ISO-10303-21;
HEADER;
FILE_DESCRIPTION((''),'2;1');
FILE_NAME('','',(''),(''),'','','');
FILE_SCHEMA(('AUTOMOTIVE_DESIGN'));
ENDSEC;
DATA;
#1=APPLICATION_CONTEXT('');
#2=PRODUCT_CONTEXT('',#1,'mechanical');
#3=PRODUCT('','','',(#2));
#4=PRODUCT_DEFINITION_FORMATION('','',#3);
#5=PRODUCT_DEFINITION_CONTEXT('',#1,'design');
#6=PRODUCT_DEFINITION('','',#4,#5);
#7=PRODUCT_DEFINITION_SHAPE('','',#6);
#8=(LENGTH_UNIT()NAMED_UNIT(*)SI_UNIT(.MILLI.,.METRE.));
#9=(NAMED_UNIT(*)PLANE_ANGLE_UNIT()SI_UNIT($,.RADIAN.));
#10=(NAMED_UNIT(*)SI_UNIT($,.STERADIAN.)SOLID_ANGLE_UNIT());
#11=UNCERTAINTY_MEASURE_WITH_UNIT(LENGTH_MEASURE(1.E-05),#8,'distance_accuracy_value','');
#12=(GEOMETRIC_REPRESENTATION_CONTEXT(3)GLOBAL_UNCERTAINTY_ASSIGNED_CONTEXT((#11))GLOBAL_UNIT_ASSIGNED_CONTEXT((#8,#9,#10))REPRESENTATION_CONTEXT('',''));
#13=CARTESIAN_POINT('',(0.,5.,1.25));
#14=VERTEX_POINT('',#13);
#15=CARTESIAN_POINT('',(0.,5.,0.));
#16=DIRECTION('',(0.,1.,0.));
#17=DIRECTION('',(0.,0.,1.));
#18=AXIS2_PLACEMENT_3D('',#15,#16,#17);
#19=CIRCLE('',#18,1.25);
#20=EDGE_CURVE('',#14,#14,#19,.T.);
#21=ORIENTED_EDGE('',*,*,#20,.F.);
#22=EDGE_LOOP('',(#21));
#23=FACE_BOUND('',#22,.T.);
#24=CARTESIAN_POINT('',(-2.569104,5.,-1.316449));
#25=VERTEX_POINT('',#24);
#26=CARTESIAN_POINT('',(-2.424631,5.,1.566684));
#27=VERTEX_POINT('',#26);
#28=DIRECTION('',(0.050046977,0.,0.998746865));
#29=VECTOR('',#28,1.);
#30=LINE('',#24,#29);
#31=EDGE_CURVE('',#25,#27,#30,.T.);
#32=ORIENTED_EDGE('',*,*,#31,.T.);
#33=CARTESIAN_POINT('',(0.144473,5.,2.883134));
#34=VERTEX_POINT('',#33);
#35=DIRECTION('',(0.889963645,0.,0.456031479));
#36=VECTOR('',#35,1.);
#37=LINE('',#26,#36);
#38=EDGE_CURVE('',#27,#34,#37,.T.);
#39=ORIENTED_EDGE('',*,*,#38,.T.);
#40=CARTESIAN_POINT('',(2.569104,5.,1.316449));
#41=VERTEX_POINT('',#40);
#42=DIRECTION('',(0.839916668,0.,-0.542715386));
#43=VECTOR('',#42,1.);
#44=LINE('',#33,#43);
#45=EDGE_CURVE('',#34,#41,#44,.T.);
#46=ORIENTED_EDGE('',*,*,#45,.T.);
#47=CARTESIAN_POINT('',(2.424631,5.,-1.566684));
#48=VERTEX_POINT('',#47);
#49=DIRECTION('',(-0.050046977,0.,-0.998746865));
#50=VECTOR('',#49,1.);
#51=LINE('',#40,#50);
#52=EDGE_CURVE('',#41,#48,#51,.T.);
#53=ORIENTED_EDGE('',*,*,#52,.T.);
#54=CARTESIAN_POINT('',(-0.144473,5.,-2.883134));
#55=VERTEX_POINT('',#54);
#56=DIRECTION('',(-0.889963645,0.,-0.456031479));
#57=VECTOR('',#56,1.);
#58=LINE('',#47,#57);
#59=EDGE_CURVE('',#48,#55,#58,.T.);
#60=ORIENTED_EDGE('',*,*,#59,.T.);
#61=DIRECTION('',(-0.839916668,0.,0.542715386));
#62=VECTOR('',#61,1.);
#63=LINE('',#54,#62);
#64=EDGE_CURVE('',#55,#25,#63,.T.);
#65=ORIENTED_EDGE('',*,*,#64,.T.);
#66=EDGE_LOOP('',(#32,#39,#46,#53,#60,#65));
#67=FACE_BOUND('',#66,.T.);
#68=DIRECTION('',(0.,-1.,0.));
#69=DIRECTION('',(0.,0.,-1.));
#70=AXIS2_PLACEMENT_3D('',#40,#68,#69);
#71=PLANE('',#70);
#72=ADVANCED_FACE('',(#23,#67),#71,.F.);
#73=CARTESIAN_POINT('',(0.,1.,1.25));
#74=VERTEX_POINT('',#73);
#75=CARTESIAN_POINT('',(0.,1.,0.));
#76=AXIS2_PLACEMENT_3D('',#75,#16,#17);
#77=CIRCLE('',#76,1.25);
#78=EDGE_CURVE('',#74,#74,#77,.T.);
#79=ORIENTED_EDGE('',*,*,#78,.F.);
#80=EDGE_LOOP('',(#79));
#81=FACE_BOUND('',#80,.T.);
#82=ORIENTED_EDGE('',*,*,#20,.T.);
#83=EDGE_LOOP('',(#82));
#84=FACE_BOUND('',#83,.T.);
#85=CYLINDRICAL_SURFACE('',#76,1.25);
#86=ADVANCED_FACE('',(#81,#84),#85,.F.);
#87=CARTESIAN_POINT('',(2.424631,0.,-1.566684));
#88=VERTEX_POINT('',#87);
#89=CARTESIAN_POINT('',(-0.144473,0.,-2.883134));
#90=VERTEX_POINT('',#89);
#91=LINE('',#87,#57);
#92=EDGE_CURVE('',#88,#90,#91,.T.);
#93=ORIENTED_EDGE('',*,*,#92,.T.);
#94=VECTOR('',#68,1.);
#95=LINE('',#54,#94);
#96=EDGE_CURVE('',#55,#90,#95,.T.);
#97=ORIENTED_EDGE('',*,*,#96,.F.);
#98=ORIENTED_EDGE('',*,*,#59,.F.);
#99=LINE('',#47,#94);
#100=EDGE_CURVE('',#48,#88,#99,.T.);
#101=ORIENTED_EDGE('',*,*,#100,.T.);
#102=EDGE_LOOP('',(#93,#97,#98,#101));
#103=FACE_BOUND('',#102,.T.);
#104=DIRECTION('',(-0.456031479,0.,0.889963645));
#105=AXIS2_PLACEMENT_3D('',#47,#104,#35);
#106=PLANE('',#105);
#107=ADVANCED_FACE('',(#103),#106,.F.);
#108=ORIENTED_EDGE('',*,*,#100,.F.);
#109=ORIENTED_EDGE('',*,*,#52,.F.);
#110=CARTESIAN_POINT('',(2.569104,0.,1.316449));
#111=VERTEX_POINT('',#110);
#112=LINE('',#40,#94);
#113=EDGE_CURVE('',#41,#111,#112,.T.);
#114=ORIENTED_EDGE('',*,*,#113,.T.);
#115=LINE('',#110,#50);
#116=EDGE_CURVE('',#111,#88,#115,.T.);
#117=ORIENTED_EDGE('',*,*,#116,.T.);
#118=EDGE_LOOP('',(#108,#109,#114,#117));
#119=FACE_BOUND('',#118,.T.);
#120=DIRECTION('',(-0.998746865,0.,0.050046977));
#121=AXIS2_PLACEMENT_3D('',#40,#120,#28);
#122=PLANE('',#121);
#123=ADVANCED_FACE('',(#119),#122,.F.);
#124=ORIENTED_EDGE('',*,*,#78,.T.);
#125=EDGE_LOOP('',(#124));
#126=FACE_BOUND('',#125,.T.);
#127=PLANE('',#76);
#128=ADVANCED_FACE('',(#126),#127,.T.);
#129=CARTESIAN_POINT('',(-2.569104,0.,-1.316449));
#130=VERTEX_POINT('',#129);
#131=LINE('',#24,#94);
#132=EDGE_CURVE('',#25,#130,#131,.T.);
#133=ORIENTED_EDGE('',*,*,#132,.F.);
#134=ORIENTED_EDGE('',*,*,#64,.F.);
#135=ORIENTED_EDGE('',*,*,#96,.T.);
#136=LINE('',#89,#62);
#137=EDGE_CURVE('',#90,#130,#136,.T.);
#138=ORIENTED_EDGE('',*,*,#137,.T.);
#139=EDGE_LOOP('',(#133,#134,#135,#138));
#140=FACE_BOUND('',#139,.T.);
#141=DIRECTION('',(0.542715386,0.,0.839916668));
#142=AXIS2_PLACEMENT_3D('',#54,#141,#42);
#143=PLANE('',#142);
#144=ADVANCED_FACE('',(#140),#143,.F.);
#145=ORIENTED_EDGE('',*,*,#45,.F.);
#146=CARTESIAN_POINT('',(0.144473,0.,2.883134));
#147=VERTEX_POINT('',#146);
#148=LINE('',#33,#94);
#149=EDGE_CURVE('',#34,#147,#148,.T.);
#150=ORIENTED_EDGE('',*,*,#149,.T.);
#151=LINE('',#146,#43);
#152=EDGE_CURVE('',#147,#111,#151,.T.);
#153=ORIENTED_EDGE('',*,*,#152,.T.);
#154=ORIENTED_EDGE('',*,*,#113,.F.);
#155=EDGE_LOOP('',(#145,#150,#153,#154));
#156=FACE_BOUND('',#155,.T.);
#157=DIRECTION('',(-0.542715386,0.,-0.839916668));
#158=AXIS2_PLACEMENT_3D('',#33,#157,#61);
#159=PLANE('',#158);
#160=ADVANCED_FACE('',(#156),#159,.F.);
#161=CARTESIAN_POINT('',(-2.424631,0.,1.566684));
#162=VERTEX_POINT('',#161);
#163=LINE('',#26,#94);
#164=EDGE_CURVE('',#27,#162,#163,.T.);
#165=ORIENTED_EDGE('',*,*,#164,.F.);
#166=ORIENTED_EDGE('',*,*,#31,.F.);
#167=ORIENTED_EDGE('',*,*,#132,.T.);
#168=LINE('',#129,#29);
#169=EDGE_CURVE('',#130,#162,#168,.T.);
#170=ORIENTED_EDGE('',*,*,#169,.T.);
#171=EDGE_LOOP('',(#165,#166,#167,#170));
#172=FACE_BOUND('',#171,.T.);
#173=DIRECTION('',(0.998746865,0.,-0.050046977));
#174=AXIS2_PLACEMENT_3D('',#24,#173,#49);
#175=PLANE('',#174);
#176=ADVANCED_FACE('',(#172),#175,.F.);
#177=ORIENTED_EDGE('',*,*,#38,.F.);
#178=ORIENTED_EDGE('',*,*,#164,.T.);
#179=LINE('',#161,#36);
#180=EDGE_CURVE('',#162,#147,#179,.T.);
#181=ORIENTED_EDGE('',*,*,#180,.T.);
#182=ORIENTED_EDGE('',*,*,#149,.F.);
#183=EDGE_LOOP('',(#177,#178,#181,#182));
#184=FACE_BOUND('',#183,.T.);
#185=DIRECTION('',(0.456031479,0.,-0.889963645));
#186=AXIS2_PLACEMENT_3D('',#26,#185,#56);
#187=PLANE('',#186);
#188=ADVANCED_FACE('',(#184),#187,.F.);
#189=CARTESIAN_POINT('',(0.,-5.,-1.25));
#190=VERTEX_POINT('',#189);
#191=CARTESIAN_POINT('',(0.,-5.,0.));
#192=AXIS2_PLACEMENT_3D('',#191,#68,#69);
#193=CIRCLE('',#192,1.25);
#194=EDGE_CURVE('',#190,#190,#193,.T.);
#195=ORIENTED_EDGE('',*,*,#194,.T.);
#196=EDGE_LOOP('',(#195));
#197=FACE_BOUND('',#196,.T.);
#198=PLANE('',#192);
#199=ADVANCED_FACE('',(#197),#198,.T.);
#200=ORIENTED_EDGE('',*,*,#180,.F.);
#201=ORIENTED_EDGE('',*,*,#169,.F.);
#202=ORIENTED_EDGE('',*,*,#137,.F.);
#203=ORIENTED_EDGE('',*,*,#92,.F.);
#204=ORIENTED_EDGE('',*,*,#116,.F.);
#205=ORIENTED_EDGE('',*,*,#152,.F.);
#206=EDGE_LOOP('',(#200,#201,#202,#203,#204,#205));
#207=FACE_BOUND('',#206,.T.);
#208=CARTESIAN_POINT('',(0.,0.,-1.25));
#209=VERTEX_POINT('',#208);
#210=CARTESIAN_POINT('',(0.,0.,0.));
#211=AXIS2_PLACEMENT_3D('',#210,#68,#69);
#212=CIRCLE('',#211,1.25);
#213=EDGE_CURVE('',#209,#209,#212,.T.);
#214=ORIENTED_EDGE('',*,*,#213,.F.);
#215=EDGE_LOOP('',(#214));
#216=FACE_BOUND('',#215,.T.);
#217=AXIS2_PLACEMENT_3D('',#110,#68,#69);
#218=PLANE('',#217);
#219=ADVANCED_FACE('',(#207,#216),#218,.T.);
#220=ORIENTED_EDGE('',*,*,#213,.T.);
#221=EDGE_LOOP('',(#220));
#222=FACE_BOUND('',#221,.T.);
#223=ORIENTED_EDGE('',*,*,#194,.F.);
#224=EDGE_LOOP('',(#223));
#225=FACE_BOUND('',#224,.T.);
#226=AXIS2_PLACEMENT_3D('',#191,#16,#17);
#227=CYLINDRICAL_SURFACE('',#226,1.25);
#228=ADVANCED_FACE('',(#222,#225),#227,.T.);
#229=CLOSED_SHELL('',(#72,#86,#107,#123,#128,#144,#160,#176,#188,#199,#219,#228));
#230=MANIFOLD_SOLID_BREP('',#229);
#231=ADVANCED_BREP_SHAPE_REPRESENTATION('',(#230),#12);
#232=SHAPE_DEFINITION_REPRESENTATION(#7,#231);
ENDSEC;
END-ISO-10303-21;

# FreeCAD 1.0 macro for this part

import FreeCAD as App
import Part
import Sketcher


def add_polygon(sketch, points):
    """Adds a closed chain of lines whose ends are joined by coincident constraints."""
    first, n = sketch.GeometryCount, len(points)
    for a, b in zip(points, points[1:] + points[:1]):
        sketch.addGeometry(Part.LineSegment(App.Vector(*a, 0), App.Vector(*b, 0)), False)
    for i in range(n):
        sketch.addConstraint(Sketcher.Constraint("Coincident", first + i, 2, first + (i + 1) % n, 1))

doc = App.newDocument("Part")
body = doc.addObject("PartDesign::Body", "Body")

sketch1 = body.newObject("Sketcher::SketchObject", "Sketch")
sketch1.AttachmentSupport = (doc.getObject("XZ_Plane"), [""])
sketch1.MapMode = "FlatFace"
add_polygon(sketch1, [(2.424631, -1.566684), (-0.144473, -2.883134), (-2.569104, -1.316449), (-2.424631, 1.566684), (0.144473, 2.883134), (2.569104, 1.316449)])
sketch1.addConstraint(Sketcher.Constraint("Symmetric", 0, 2, 3, 2, -1, 1))
sketch1.addConstraint(Sketcher.Constraint("Symmetric", 1, 2, 4, 2, -1, 1))
sketch1.addConstraint(Sketcher.Constraint("Symmetric", 2, 2, 5, 2, -1, 1))
sketch1.addConstraint(Sketcher.Constraint("Equal", 0, 1))
sketch1.addConstraint(Sketcher.Constraint("Equal", 1, 2))
sketch1.addConstraint(Sketcher.Constraint("DistanceY", 1, 2, 4, 2, 2.632899))
sketch1.addConstraint(Sketcher.Constraint("Distance", 0, 2.886751))
sketch1.addConstraint(Sketcher.Constraint("DistanceX", 2, 2, -1, 1, 2.424631))
sketch1.addConstraint(Sketcher.Constraint("DistanceX", 1, 2, 0, 2, 2.424631))
pad1 = body.newObject("PartDesign::Pad", "Pad")
pad1.Profile = sketch1
pad1.Length = 5
pad1.Reversed = True

sketch2 = body.newObject("Sketcher::SketchObject", "Sketch001")
sketch2.AttachmentSupport = (doc.getObject("XZ_Plane"), [""])
sketch2.MapMode = "FlatFace"
sketch2.addGeometry(Part.Circle(App.Vector(0, 0, 0), App.Vector(0, 0, 1), 1.25), False)
sketch2.addConstraint(Sketcher.Constraint("Coincident", 0, 3, -1, 1))
sketch2.addConstraint(Sketcher.Constraint("Diameter", 0, 2.5))
pad2 = body.newObject("PartDesign::Pad", "Pad001")
pad2.Profile = sketch2
pad2.Length = 5

sketch3 = body.newObject("Sketcher::SketchObject", "Sketch002")
sketch3.AttachmentSupport = (doc.getObject("XZ_Plane"), [""])
sketch3.MapMode = "FlatFace"
sketch3.AttachmentOffset = App.Placement(App.Vector(0, 0, -5), App.Rotation())
sketch3.addGeometry(Part.Circle(App.Vector(0, 0, 0), App.Vector(0, 0, 1), 1.25), False)
sketch3.addConstraint(Sketcher.Constraint("Coincident", 0, 3, -1, 1))
sketch3.addConstraint(Sketcher.Constraint("Diameter", 0, 2.5))
pocket1 = body.newObject("PartDesign::Pocket", "Pocket")
pocket1.Profile = sketch3
pocket1.Length = 4
pocket1.Reversed = True

doc.recompute()
